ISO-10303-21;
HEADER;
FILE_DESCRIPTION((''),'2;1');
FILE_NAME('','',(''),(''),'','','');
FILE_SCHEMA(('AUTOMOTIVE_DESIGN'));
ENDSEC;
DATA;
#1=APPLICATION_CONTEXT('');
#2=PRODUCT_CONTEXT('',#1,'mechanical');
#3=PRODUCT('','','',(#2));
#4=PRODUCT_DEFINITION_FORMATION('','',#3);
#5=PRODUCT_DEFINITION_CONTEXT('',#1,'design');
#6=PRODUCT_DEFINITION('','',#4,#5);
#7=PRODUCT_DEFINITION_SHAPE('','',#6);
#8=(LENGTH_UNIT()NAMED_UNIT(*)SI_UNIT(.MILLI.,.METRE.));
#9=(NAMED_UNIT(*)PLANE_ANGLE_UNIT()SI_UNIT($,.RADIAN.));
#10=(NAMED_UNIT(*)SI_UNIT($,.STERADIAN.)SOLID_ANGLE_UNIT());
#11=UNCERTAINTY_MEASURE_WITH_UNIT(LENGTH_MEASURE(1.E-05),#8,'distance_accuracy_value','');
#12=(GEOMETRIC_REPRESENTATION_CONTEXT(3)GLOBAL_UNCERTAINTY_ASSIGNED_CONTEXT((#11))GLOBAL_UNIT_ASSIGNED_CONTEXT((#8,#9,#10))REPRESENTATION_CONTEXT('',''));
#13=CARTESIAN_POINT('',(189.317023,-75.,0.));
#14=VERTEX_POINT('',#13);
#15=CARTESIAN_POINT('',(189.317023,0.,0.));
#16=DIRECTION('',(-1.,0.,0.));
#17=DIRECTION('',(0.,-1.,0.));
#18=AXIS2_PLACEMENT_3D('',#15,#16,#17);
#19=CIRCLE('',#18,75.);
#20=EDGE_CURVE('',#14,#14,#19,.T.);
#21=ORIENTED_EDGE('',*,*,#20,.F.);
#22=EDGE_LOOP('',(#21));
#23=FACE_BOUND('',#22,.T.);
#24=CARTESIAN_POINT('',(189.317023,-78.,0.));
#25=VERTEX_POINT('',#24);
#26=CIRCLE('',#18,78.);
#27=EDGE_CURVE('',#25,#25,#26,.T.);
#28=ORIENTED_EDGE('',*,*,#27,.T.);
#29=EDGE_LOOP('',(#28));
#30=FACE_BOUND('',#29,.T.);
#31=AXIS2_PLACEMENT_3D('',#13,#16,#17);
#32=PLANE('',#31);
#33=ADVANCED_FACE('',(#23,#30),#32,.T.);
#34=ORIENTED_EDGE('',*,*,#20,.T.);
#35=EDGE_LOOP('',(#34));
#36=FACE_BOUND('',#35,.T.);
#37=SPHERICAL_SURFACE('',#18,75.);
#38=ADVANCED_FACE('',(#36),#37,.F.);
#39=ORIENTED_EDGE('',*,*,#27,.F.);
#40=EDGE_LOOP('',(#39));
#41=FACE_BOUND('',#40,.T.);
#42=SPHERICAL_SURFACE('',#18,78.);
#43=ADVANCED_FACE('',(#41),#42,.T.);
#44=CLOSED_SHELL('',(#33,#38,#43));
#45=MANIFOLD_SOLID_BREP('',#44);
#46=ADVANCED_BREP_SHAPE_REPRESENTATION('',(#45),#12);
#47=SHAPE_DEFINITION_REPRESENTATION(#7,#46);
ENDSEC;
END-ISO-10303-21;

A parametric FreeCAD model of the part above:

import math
import FreeCAD as App
import Part
import Sketcher
from FreeCAD import Vector
Q = App.Units.Quantity

doc = App.newDocument("Part")
body = doc.addObject("PartDesign::Body", "Body")

# Sketch on XY plane
sketch1 = body.newObject("Sketcher::SketchObject", "Sketch")
sketch1.AttachmentSupport = (doc.getObject("XY_Plane"), [""])
sketch1.MapMode = "FlatFace"
sketch1.addGeometry([
    Part.LineSegment(Vector(189.317023, -75, 0), Vector(189.317023, -78, 0)),
    Part.ArcOfCircle(Part.Circle(Vector(189.317023, 0, 0), Vector(0, 0, 1), 78), math.radians(-90), math.radians(0)),
    Part.LineSegment(Vector(267.317023, 0, 0), Vector(264.317023, 0, 0)),
    Part.ArcOfCircle(Part.Circle(Vector(189.317023, 0, 0), Vector(0, 0, 1), 75), math.radians(-90), math.radians(0)),
], False)
sketch1.addConstraint([
    Sketcher.Constraint("Coincident", 0, 2, 1, 1),
    Sketcher.Constraint("Coincident", 1, 2, 2, 1),
    Sketcher.Constraint("Coincident", 2, 2, 3, 2),
    Sketcher.Constraint("Coincident", 3, 1, 0, 1),
    Sketcher.Constraint("Vertical", 0),
    Sketcher.Constraint("Horizontal", 2),
    Sketcher.Constraint("Coincident", 3, 3, 1, 3),
    Sketcher.Constraint("PointOnObject", 1, 3, -1),
    Sketcher.Constraint("PointOnObject", 1, 2, -1),
    Sketcher.Constraint("Vertical", 3, 3, 0, 2),
    Sketcher.Constraint("Radius", 1, Q("78 mm")),
    Sketcher.Constraint("Radius", 3, Q("75 mm")),
    Sketcher.Constraint("DistanceX", -1, 1, 1, 3, Q("189.317023 mm")),
])
revolution = body.newObject("PartDesign::Revolution", "Revolution")
revolution.Profile = sketch1
revolution.ReferenceAxis = (sketch1, ["H_Axis"])
revolution.Angle = 360

doc.recompute()
